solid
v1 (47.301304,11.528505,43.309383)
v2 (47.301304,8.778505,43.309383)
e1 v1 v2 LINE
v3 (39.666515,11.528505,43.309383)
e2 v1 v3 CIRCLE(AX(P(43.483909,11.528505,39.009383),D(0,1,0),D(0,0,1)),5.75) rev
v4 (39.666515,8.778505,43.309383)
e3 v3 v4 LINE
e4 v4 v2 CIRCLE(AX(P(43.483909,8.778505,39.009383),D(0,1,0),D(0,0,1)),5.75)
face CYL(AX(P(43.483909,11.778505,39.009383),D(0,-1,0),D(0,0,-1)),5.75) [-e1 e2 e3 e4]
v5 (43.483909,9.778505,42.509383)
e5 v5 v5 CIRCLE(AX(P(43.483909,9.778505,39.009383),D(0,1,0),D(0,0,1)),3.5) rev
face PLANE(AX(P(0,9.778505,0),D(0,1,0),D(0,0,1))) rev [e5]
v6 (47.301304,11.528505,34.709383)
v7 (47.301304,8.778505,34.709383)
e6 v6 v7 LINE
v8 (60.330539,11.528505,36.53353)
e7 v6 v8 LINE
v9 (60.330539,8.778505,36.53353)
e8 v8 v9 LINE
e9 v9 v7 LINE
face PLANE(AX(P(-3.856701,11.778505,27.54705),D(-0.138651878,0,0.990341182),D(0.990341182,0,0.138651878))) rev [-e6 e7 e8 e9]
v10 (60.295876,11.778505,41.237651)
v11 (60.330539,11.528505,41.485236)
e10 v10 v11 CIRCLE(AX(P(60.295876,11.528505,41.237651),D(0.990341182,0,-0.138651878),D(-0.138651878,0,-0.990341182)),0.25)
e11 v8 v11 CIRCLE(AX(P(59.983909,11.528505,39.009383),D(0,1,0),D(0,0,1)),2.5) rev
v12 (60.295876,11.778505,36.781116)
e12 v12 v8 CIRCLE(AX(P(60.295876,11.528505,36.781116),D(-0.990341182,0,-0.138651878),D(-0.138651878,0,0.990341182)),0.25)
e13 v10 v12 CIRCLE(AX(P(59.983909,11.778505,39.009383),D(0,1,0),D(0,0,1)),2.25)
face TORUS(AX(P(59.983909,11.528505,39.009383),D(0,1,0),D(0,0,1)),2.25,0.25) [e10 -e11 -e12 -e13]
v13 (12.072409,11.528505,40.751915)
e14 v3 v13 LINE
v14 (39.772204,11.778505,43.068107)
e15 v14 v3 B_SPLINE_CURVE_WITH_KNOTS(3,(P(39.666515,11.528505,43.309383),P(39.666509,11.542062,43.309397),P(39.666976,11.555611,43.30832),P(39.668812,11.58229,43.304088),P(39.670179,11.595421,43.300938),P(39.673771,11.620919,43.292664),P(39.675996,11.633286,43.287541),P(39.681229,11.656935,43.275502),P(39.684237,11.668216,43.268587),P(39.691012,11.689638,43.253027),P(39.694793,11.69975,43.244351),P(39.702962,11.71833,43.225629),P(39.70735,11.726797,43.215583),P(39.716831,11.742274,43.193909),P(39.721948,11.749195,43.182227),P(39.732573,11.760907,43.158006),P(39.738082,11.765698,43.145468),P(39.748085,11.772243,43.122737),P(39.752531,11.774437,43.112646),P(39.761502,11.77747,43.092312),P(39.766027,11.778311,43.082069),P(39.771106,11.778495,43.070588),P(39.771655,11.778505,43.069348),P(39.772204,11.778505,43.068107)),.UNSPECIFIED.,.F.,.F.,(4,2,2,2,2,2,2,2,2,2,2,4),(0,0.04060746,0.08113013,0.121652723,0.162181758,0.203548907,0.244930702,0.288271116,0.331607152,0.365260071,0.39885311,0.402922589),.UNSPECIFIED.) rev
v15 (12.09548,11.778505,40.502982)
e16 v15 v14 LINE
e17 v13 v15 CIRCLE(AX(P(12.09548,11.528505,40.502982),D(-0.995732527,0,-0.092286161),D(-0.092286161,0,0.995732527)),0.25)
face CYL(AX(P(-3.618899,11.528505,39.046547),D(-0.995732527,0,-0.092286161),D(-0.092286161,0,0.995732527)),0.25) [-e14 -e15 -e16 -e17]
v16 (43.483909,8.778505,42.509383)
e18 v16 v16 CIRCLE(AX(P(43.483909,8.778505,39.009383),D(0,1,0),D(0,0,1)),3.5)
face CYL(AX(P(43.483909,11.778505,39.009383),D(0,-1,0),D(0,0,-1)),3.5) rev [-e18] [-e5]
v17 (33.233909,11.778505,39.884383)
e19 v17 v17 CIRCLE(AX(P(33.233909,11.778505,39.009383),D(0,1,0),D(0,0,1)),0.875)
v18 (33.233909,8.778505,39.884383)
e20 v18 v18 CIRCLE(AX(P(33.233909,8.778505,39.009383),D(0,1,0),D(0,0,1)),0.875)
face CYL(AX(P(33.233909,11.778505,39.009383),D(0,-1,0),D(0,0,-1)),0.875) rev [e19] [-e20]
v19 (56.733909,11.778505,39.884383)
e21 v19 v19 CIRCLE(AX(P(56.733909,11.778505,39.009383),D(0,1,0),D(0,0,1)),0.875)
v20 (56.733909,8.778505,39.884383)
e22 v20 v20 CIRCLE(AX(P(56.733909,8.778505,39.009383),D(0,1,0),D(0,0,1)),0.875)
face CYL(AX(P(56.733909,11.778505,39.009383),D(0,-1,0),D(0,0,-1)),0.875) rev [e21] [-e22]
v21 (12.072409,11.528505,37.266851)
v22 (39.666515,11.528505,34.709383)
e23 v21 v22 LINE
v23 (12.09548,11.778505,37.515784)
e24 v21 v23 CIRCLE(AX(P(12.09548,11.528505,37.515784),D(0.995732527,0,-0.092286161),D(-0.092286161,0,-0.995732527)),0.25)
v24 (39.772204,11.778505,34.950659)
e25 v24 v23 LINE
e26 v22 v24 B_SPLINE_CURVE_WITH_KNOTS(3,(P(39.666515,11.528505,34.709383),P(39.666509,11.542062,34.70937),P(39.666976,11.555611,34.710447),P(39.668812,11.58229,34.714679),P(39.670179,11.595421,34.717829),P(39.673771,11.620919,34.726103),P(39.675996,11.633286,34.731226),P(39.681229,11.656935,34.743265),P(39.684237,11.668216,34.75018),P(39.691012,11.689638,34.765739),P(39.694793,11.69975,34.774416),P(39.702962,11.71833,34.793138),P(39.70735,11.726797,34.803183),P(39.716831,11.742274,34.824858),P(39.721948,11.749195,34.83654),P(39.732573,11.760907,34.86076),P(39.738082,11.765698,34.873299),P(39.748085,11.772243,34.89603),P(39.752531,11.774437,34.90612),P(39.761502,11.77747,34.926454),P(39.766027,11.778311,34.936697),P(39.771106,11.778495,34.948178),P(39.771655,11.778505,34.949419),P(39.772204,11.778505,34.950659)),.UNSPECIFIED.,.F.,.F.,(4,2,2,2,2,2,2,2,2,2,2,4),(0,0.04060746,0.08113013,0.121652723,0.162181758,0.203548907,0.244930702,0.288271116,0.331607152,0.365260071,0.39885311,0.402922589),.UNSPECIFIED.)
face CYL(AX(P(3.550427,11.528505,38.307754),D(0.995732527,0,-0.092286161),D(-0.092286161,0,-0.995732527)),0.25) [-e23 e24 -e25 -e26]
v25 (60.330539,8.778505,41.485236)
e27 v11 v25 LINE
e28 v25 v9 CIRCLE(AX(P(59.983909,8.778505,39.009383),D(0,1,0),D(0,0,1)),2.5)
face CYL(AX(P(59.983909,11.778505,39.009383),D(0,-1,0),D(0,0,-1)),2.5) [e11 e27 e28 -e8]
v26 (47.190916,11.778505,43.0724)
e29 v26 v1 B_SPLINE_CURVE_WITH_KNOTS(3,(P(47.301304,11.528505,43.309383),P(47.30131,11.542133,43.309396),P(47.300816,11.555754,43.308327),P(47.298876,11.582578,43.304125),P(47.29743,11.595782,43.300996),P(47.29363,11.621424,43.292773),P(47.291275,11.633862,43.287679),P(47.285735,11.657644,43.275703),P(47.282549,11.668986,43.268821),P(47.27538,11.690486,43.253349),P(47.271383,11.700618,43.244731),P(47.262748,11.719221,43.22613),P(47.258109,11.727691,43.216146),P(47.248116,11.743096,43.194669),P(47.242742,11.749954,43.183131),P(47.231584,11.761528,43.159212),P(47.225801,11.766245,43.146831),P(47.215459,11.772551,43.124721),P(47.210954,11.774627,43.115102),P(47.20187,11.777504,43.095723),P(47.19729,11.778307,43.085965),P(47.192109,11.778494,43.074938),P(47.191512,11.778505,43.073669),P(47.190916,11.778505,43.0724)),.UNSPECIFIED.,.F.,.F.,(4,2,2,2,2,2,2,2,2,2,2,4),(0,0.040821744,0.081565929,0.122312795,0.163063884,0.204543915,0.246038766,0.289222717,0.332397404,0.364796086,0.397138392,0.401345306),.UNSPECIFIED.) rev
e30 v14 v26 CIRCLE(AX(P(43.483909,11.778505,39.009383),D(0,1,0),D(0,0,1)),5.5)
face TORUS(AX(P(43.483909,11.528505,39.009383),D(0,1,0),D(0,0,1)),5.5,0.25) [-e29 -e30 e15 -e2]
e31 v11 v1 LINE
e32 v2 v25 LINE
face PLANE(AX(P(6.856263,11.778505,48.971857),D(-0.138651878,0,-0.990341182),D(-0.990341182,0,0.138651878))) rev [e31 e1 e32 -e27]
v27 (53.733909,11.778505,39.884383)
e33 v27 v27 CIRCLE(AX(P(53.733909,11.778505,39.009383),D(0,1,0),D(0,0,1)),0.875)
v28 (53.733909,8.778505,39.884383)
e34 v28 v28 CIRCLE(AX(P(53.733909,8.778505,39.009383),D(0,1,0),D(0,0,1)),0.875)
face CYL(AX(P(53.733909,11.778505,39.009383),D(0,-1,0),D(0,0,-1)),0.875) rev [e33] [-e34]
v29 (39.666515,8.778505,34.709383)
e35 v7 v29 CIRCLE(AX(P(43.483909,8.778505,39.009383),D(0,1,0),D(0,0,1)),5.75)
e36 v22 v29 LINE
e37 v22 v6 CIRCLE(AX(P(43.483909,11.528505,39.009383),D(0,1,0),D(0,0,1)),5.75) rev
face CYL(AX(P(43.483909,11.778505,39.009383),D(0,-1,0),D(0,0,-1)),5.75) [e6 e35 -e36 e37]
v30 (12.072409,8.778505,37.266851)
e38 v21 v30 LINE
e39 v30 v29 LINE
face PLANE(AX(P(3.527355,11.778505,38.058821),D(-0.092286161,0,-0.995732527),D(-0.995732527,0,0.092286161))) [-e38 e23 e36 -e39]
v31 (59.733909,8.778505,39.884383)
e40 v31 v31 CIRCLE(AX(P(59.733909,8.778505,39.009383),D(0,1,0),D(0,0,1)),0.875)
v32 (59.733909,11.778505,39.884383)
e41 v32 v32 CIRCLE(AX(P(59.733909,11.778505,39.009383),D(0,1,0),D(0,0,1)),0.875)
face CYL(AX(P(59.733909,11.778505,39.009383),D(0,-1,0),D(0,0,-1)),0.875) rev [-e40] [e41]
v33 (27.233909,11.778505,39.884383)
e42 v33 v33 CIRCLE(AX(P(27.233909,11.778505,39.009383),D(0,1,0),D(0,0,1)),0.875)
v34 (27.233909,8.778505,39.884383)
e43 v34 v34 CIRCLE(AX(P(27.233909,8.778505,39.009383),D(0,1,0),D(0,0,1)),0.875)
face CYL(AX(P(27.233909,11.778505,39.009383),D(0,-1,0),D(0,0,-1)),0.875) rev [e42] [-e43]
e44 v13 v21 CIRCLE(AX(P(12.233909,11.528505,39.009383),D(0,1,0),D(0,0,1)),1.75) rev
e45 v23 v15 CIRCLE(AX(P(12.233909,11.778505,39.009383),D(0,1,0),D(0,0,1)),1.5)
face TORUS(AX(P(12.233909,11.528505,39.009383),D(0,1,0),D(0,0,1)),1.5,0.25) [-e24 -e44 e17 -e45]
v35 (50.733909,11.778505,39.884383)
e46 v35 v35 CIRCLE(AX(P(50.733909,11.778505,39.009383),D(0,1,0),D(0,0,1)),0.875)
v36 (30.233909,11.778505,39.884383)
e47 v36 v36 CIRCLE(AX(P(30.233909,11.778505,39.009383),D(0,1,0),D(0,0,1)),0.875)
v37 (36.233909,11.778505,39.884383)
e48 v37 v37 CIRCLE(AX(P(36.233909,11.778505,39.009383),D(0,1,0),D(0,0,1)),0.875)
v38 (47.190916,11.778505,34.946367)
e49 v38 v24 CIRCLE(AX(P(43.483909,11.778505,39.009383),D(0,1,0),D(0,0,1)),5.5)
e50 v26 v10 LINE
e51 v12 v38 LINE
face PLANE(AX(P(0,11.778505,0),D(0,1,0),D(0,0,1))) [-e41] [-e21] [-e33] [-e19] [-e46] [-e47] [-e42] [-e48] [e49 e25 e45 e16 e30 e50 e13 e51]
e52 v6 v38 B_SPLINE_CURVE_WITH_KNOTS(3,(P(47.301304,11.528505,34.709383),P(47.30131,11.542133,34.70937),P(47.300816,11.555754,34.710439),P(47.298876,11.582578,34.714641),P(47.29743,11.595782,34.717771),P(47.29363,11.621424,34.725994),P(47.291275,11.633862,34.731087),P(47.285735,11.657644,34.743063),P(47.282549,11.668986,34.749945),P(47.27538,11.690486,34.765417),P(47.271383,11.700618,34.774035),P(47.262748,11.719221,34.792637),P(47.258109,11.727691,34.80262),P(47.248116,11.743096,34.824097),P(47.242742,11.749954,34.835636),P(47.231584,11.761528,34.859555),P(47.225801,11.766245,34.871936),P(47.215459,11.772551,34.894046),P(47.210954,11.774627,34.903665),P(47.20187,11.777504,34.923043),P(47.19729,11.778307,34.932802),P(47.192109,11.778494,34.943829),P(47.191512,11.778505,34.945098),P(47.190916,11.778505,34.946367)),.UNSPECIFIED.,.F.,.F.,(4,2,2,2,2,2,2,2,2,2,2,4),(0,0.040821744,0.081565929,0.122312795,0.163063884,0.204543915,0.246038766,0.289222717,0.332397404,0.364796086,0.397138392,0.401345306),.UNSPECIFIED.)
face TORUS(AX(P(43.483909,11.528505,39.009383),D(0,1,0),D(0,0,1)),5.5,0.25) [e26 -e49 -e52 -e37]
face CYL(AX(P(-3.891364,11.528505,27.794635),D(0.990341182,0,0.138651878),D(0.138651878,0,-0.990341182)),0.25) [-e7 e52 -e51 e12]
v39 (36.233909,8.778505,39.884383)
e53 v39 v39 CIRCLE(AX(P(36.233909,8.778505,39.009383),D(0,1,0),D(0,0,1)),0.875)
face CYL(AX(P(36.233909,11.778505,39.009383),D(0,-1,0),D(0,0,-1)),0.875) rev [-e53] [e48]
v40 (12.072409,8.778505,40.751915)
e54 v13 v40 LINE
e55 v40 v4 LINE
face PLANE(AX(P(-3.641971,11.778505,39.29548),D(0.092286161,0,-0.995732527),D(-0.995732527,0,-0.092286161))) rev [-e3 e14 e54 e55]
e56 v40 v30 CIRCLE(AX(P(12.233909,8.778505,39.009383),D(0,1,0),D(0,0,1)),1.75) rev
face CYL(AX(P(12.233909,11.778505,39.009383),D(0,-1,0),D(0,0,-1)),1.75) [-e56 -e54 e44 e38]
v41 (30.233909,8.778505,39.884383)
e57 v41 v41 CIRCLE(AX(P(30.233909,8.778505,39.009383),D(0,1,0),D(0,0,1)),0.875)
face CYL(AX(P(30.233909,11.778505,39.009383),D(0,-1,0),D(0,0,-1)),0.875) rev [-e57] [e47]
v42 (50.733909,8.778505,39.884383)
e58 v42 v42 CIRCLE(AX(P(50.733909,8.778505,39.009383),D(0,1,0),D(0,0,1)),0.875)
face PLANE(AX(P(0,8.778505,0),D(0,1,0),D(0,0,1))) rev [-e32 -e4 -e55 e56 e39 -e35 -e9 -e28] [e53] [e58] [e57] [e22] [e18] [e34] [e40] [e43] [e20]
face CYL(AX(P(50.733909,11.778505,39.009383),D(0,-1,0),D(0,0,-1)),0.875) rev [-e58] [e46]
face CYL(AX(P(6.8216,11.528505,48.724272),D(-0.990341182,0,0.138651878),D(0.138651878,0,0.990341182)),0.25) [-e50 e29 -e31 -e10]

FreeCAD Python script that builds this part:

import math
import FreeCAD as App
import Part
import Sketcher
Q = App.Units.Quantity


def edges_at(feature, points):
    """Names of the edges that pass closest to the given points."""
    edges = feature.Shape.Edges
    near = lambda p: min(range(len(edges)), key=lambda i: edges[i].distToShape(Part.Vertex(*p))[0])
    return sorted({f"Edge{near(p) + 1}" for p in points})

doc = App.newDocument("Part")
body = doc.addObject("PartDesign::Body", "Body")

sketch1 = body.newObject("Sketcher::SketchObject", "Sketch")
sketch1.AttachmentSupport = (doc.getObject("XZ_Plane"), [""])
sketch1.MapMode = "FlatFace"
sketch1.AttachmentOffset = App.Placement(App.Vector(0, 0, -8.778505), App.Rotation())
sketch1.addGeometry([
    Part.LineSegment(App.Vector(39.666515, 34.709383, 0), App.Vector(12.072409, 37.266851, 0)),
    Part.ArcOfCircle(Part.Circle(App.Vector(12.233909, 39.009383, 0), App.Vector(0, 0, 1), 1.75), math.radians(95.295142), math.radians(264.704858)),
    Part.LineSegment(App.Vector(12.072409, 40.751915, 0), App.Vector(39.666515, 43.309383, 0)),
    Part.ArcOfCircle(Part.Circle(App.Vector(43.483909, 39.009383, 0), App.Vector(0, 0, 1), 5.75), math.radians(48.402416), math.radians(131.597584)),
    Part.LineSegment(App.Vector(47.301304, 43.309383, 0), App.Vector(60.330539, 41.485236, 0)),
    Part.ArcOfCircle(Part.Circle(App.Vector(59.983909, 39.009383, 0), App.Vector(0, 0, 1), 2.5), math.radians(-82.030156), math.radians(82.030156)),
    Part.LineSegment(App.Vector(60.330539, 36.53353, 0), App.Vector(47.301304, 34.709383, 0)),
    Part.ArcOfCircle(Part.Circle(App.Vector(43.483909, 39.009383, 0), App.Vector(0, 0, 1), 5.75), math.radians(-131.597584), math.radians(-48.402416)),
    Part.Circle(App.Vector(27.233909, 39.009383, 0), App.Vector(0, 0, 1), 0.875),
    Part.Circle(App.Vector(30.233909, 39.009383, 0), App.Vector(0, 0, 1), 0.875),
    Part.Circle(App.Vector(33.233909, 39.009383, 0), App.Vector(0, 0, 1), 0.875),
    Part.Circle(App.Vector(36.233909, 39.009383, 0), App.Vector(0, 0, 1), 0.875),
    Part.Circle(App.Vector(43.483909, 39.009383, 0), App.Vector(0, 0, 1), 3.5),
    Part.Circle(App.Vector(50.733909, 39.009383, 0), App.Vector(0, 0, 1), 0.875),
    Part.Circle(App.Vector(53.733909, 39.009383, 0), App.Vector(0, 0, 1), 0.875),
    Part.Circle(App.Vector(56.733909, 39.009383, 0), App.Vector(0, 0, 1), 0.875),
    Part.Circle(App.Vector(59.733909, 39.009383, 0), App.Vector(0, 0, 1), 0.875),
], False)
sketch1.addConstraint([
    Sketcher.Constraint("Tangent", 0, 2, 1, 2),
    Sketcher.Constraint("Tangent", 1, 1, 2, 1),
    Sketcher.Constraint("Coincident", 2, 2, 3, 2),
    Sketcher.Constraint("Coincident", 3, 1, 4, 1),
    Sketcher.Constraint("Tangent", 4, 2, 5, 2),
    Sketcher.Constraint("Tangent", 5, 1, 6, 1),
    Sketcher.Constraint("Coincident", 6, 2, 7, 2),
    Sketcher.Constraint("Coincident", 7, 1, 0, 1),
    Sketcher.Constraint("Coincident", 7, 3, 3, 3),
    Sketcher.Constraint("Coincident", 12, 3, 3, 3),
    Sketcher.Constraint("Equal", 3, 7),
    Sketcher.Constraint("Equal", 8, 9),
    Sketcher.Constraint("Equal", 9, 10),
    Sketcher.Constraint("Equal", 10, 11),
    Sketcher.Constraint("Equal", 11, 13),
    Sketcher.Constraint("Equal", 13, 14),
    Sketcher.Constraint("Equal", 14, 15),
    Sketcher.Constraint("Equal", 15, 16),
    Sketcher.Constraint("Horizontal", 1, 3, 3, 3),
    Sketcher.Constraint("Horizontal", 3, 3, 5, 3),
    Sketcher.Constraint("Horizontal", 7, 3, 8, 3),
    Sketcher.Constraint("Horizontal", 8, 3, 9, 3),
    Sketcher.Constraint("Horizontal", 9, 3, 10, 3),
    Sketcher.Constraint("Horizontal", 10, 3, 11, 3),
    Sketcher.Constraint("Horizontal", 12, 3, 13, 3),
    Sketcher.Constraint("Horizontal", 13, 3, 14, 3),
    Sketcher.Constraint("Horizontal", 14, 3, 15, 3),
    Sketcher.Constraint("Horizontal", 15, 3, 16, 3),
    Sketcher.Constraint("Horizontal", 2, 2, 3, 1),
    Sketcher.Constraint("Horizontal", 6, 2, 7, 1),
    Sketcher.Constraint("Vertical", 0, 2, 1, 1),
    Sketcher.Constraint("Diameter", 12, Q("7 mm")),
    Sketcher.Constraint("Radius", 5, Q("2.5 mm")),
    Sketcher.Constraint("Diameter", 8, Q("1.75 mm")),
    Sketcher.Constraint("Radius", 1, Q("1.75 mm")),
    Sketcher.Constraint("Radius", 3, Q("5.75 mm")),
    Sketcher.Constraint("DistanceX", 1, 3, 8, 3, Q("15 mm")),
    Sketcher.Constraint("DistanceX", 8, 3, 9, 3, Q("3 mm")),
    Sketcher.Constraint("DistanceX", 9, 3, 10, 3, Q("3 mm")),
    Sketcher.Constraint("DistanceX", 10, 3, 11, 3, Q("3 mm")),
    Sketcher.Constraint("DistanceX", 13, 3, 14, 3, Q("3 mm")),
    Sketcher.Constraint("DistanceX", 14, 3, 15, 3, Q("3 mm")),
    Sketcher.Constraint("DistanceX", 15, 3, 16, 3, Q("3 mm")),
    Sketcher.Constraint("DistanceX", 3, 3, 5, 3, Q("16.5 mm")),
    Sketcher.Constraint("DistanceX", 11, 3, 13, 3, Q("14.5 mm")),
    Sketcher.Constraint("DistanceY", 11, 3, 2, 2, Q("4.3 mm")),
    Sketcher.Constraint("DistanceX", 1, 3, 3, 3, Q("31.25 mm")),
    Sketcher.Constraint("DistanceX", -1, 1, 1, 3, Q("12.233909 mm")),
    Sketcher.Constraint("DistanceY", -1, 1, 0, 2, Q("37.266851 mm")),
])
pad1 = body.newObject("PartDesign::Pad", "Pad")
pad1.Profile = sketch1
pad1.Length = 3
pad1.Reversed = True

sketch2 = body.newObject("Sketcher::SketchObject", "Sketch001")
sketch2.AttachmentSupport = (doc.getObject("XZ_Plane"), [""])
sketch2.MapMode = "FlatFace"
sketch2.AttachmentOffset = App.Placement(App.Vector(0, 0, -9.778505), App.Rotation())
sketch2.addGeometry(Part.Circle(App.Vector(43.483909, 39.009383, 0), App.Vector(0, 0, 1), 3.5), False)
sketch2.addConstraint([
    Sketcher.Constraint("Diameter", 0, Q("7 mm")),
    Sketcher.Constraint("DistanceX", -1, 1, 0, 3, Q("43.483909 mm")),
    Sketcher.Constraint("DistanceY", -1, 1, 0, 3, Q("39.009383 mm")),
])
pad2 = body.newObject("PartDesign::Pad", "Pad001")
pad2.Profile = sketch2
pad2.Length = 2
pad2.Reversed = True
doc.recompute()

fillet = body.newObject("PartDesign::Fillet", "Fillet")
fillet.Base = (pad2, edges_at(pad2, [
    (25.869, 11.779, 42.031),
    (43.484, 11.779, 44.759),
    (53.816, 11.779, 42.397),
    (62.484, 11.779, 39.009),
    (53.816, 11.779, 35.621),
    (43.484, 11.779, 33.259),
    (25.869, 11.779, 35.988),
    (10.484, 11.779, 39.009),
]))
fillet.Radius = 0.25

doc.recompute()
